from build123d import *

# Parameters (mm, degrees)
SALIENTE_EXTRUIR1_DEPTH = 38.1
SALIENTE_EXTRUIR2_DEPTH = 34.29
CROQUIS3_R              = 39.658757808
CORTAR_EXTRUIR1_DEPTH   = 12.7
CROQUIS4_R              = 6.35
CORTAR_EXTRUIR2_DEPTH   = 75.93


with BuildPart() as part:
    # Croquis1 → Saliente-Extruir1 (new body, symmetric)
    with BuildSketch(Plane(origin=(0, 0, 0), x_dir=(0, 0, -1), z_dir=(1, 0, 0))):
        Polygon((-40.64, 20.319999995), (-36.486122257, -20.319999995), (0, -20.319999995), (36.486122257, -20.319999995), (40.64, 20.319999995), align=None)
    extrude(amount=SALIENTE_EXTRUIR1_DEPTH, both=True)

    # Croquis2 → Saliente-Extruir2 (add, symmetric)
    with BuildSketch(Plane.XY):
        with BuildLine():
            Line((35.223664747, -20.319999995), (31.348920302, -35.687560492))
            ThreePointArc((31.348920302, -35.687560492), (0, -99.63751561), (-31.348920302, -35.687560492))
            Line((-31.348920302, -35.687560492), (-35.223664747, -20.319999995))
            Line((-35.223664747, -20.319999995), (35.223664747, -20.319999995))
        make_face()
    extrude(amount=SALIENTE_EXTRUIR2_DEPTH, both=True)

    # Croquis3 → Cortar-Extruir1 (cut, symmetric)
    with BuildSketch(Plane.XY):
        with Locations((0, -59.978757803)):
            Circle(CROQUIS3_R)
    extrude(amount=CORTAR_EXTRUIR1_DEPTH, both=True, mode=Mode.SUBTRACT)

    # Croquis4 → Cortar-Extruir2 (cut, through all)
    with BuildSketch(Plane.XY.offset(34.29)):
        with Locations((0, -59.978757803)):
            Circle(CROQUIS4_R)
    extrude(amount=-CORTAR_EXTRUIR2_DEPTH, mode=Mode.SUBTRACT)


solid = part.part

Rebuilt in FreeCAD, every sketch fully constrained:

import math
import FreeCAD as App
import Part
import Sketcher
Q = App.Units.Quantity

doc = App.newDocument("Part")
body = doc.addObject("PartDesign::Body", "Body")

# Sketch on YZ plane
sketch1 = body.newObject("Sketcher::SketchObject", "Sketch")
sketch1.AttachmentSupport = (doc.getObject("YZ_Plane"), [""])
sketch1.MapMode = "FlatFace"
sketch1.addGeometry(Part.LineSegment(App.Vector(20.32, 40.64, 0), App.Vector(-20.32, 36.486122, 0)), False)
sketch1.addGeometry(Part.LineSegment(App.Vector(-20.32, 36.486122, 0), App.Vector(-20.32, -36.486122, 0)), False)
sketch1.addGeometry(Part.LineSegment(App.Vector(-20.32, -36.486122, 0), App.Vector(20.32, -40.64, 0)), False)
sketch1.addGeometry(Part.LineSegment(App.Vector(20.32, -40.64, 0), App.Vector(20.32, 40.64, 0)), False)
sketch1.addConstraint(Sketcher.Constraint("Coincident", 0, 2, 1, 1))
sketch1.addConstraint(Sketcher.Constraint("Coincident", 1, 2, 2, 1))
sketch1.addConstraint(Sketcher.Constraint("Coincident", 2, 2, 3, 1))
sketch1.addConstraint(Sketcher.Constraint("Coincident", 3, 2, 0, 1))
sketch1.addConstraint(Sketcher.Constraint("Vertical", 1))
sketch1.addConstraint(Sketcher.Constraint("Vertical", 3))
sketch1.addConstraint(Sketcher.Constraint("Equal", 0, 2))
sketch1.addConstraint(Sketcher.Constraint("DistanceY", 3, 1, 3, 2, Q("3.2 in")))
sketch1.addConstraint(Sketcher.Constraint("DistanceX", 0, 2, -1, 1, Q("0.8 in")))
sketch1.addConstraint(Sketcher.Constraint("DistanceX", -1, 1, 2, 2, Q("0.8 in")))
sketch1.addConstraint(Sketcher.Constraint("DistanceY", 2, 2, -1, 1, Q("1.6 in")))
sketch1.addConstraint(Sketcher.Constraint("DistanceY", 1, 2, 1, 1, 72.972245))
pad1 = body.newObject("PartDesign::Pad", "Pad")
pad1.Profile = sketch1
pad1.Length = Q("3 in")
pad1.Midplane = True

# Sketch on XY plane
sketch2 = body.newObject("Sketcher::SketchObject", "Sketch001")
sketch2.AttachmentSupport = (doc.getObject("XY_Plane"), [""])
sketch2.MapMode = "FlatFace"
sketch2.addGeometry(Part.LineSegment(App.Vector(31.34892, -35.68756, 0), App.Vector(35.223665, -20.32, 0)), False)
sketch2.addGeometry(Part.LineSegment(App.Vector(35.223665, -20.32, 0), App.Vector(-35.223665, -20.32, 0)), False)
sketch2.addGeometry(Part.LineSegment(App.Vector(-35.223665, -20.32, 0), App.Vector(-31.34892, -35.68756, 0)), False)
sketch2.addGeometry(Part.ArcOfCircle(Part.Circle(App.Vector(0, -59.978758, 0), App.Vector(0, 0, 1), 39.658758), math.radians(142.22913), math.radians(397.77087)), False)
sketch2.addConstraint(Sketcher.Constraint("Coincident", 0, 2, 1, 1))
sketch2.addConstraint(Sketcher.Constraint("Coincident", 1, 2, 2, 1))
sketch2.addConstraint(Sketcher.Constraint("Coincident", 2, 2, 3, 1))
sketch2.addConstraint(Sketcher.Constraint("Coincident", 3, 2, 0, 1))
sketch2.addConstraint(Sketcher.Constraint("Horizontal", 1))
sketch2.addConstraint(Sketcher.Constraint("Symmetric", 2, 2, 3, 2, -2))
sketch2.addConstraint(Sketcher.Constraint("Equal", 0, 2))
sketch2.addConstraint(Sketcher.Constraint("DistanceY", 0, 2, -1, 1, Q("0.8 in")))
sketch2.addConstraint(Sketcher.Constraint("Radius", 3, 39.658758))
sketch2.addConstraint(Sketcher.Constraint("DistanceX", 1, 2, 1, 1, 70.447329))
sketch2.addConstraint(Sketcher.Constraint("Distance", 0, 15.848519))
sketch2.addConstraint(Sketcher.Constraint("DistanceX", 2, 2, -1, 1, 31.34892))
pad2 = body.newObject("PartDesign::Pad", "Pad001")
pad2.Profile = sketch2
pad2.Length = Q("2.7 in")
pad2.Midplane = True

# Sketch on XY plane
sketch3 = body.newObject("Sketcher::SketchObject", "Sketch002")
sketch3.AttachmentSupport = (doc.getObject("XY_Plane"), [""])
sketch3.MapMode = "FlatFace"
sketch3.addGeometry(Part.Circle(App.Vector(0, -59.978758, 0), App.Vector(0, 0, 1), 39.658758), False)
sketch3.addConstraint(Sketcher.Constraint("PointOnObject", 0, 3, -2))
sketch3.addConstraint(Sketcher.Constraint("Diameter", 0, 79.317516))
sketch3.addConstraint(Sketcher.Constraint("DistanceY", 0, 3, -1, 1, 59.978758))
pocket1 = body.newObject("PartDesign::Pocket", "Pocket")
pocket1.Profile = sketch3
pocket1.Length = Q("1 in")
pocket1.Midplane = True

# Sketch on XY plane
sketch4 = body.newObject("Sketcher::SketchObject", "Sketch003")
sketch4.AttachmentSupport = (doc.getObject("XY_Plane"), [""])
sketch4.MapMode = "FlatFace"
sketch4.AttachmentOffset = App.Placement(App.Vector(0, 0, 1.35 * 25.4), App.Rotation())
sketch4.addGeometry(Part.Circle(App.Vector(0, -59.978758, 0), App.Vector(0, 0, 1), 6.35), False)
sketch4.addConstraint(Sketcher.Constraint("PointOnObject", 0, 3, -2))
sketch4.addConstraint(Sketcher.Constraint("Diameter", 0, Q("0.5 in")))
sketch4.addConstraint(Sketcher.Constraint("DistanceY", 0, 3, -1, 1, 59.978758))
pocket2 = body.newObject("PartDesign::Pocket", "Pocket001")
pocket2.Profile = sketch4
pocket2.Type = "ThroughAll"

doc.recompute()
